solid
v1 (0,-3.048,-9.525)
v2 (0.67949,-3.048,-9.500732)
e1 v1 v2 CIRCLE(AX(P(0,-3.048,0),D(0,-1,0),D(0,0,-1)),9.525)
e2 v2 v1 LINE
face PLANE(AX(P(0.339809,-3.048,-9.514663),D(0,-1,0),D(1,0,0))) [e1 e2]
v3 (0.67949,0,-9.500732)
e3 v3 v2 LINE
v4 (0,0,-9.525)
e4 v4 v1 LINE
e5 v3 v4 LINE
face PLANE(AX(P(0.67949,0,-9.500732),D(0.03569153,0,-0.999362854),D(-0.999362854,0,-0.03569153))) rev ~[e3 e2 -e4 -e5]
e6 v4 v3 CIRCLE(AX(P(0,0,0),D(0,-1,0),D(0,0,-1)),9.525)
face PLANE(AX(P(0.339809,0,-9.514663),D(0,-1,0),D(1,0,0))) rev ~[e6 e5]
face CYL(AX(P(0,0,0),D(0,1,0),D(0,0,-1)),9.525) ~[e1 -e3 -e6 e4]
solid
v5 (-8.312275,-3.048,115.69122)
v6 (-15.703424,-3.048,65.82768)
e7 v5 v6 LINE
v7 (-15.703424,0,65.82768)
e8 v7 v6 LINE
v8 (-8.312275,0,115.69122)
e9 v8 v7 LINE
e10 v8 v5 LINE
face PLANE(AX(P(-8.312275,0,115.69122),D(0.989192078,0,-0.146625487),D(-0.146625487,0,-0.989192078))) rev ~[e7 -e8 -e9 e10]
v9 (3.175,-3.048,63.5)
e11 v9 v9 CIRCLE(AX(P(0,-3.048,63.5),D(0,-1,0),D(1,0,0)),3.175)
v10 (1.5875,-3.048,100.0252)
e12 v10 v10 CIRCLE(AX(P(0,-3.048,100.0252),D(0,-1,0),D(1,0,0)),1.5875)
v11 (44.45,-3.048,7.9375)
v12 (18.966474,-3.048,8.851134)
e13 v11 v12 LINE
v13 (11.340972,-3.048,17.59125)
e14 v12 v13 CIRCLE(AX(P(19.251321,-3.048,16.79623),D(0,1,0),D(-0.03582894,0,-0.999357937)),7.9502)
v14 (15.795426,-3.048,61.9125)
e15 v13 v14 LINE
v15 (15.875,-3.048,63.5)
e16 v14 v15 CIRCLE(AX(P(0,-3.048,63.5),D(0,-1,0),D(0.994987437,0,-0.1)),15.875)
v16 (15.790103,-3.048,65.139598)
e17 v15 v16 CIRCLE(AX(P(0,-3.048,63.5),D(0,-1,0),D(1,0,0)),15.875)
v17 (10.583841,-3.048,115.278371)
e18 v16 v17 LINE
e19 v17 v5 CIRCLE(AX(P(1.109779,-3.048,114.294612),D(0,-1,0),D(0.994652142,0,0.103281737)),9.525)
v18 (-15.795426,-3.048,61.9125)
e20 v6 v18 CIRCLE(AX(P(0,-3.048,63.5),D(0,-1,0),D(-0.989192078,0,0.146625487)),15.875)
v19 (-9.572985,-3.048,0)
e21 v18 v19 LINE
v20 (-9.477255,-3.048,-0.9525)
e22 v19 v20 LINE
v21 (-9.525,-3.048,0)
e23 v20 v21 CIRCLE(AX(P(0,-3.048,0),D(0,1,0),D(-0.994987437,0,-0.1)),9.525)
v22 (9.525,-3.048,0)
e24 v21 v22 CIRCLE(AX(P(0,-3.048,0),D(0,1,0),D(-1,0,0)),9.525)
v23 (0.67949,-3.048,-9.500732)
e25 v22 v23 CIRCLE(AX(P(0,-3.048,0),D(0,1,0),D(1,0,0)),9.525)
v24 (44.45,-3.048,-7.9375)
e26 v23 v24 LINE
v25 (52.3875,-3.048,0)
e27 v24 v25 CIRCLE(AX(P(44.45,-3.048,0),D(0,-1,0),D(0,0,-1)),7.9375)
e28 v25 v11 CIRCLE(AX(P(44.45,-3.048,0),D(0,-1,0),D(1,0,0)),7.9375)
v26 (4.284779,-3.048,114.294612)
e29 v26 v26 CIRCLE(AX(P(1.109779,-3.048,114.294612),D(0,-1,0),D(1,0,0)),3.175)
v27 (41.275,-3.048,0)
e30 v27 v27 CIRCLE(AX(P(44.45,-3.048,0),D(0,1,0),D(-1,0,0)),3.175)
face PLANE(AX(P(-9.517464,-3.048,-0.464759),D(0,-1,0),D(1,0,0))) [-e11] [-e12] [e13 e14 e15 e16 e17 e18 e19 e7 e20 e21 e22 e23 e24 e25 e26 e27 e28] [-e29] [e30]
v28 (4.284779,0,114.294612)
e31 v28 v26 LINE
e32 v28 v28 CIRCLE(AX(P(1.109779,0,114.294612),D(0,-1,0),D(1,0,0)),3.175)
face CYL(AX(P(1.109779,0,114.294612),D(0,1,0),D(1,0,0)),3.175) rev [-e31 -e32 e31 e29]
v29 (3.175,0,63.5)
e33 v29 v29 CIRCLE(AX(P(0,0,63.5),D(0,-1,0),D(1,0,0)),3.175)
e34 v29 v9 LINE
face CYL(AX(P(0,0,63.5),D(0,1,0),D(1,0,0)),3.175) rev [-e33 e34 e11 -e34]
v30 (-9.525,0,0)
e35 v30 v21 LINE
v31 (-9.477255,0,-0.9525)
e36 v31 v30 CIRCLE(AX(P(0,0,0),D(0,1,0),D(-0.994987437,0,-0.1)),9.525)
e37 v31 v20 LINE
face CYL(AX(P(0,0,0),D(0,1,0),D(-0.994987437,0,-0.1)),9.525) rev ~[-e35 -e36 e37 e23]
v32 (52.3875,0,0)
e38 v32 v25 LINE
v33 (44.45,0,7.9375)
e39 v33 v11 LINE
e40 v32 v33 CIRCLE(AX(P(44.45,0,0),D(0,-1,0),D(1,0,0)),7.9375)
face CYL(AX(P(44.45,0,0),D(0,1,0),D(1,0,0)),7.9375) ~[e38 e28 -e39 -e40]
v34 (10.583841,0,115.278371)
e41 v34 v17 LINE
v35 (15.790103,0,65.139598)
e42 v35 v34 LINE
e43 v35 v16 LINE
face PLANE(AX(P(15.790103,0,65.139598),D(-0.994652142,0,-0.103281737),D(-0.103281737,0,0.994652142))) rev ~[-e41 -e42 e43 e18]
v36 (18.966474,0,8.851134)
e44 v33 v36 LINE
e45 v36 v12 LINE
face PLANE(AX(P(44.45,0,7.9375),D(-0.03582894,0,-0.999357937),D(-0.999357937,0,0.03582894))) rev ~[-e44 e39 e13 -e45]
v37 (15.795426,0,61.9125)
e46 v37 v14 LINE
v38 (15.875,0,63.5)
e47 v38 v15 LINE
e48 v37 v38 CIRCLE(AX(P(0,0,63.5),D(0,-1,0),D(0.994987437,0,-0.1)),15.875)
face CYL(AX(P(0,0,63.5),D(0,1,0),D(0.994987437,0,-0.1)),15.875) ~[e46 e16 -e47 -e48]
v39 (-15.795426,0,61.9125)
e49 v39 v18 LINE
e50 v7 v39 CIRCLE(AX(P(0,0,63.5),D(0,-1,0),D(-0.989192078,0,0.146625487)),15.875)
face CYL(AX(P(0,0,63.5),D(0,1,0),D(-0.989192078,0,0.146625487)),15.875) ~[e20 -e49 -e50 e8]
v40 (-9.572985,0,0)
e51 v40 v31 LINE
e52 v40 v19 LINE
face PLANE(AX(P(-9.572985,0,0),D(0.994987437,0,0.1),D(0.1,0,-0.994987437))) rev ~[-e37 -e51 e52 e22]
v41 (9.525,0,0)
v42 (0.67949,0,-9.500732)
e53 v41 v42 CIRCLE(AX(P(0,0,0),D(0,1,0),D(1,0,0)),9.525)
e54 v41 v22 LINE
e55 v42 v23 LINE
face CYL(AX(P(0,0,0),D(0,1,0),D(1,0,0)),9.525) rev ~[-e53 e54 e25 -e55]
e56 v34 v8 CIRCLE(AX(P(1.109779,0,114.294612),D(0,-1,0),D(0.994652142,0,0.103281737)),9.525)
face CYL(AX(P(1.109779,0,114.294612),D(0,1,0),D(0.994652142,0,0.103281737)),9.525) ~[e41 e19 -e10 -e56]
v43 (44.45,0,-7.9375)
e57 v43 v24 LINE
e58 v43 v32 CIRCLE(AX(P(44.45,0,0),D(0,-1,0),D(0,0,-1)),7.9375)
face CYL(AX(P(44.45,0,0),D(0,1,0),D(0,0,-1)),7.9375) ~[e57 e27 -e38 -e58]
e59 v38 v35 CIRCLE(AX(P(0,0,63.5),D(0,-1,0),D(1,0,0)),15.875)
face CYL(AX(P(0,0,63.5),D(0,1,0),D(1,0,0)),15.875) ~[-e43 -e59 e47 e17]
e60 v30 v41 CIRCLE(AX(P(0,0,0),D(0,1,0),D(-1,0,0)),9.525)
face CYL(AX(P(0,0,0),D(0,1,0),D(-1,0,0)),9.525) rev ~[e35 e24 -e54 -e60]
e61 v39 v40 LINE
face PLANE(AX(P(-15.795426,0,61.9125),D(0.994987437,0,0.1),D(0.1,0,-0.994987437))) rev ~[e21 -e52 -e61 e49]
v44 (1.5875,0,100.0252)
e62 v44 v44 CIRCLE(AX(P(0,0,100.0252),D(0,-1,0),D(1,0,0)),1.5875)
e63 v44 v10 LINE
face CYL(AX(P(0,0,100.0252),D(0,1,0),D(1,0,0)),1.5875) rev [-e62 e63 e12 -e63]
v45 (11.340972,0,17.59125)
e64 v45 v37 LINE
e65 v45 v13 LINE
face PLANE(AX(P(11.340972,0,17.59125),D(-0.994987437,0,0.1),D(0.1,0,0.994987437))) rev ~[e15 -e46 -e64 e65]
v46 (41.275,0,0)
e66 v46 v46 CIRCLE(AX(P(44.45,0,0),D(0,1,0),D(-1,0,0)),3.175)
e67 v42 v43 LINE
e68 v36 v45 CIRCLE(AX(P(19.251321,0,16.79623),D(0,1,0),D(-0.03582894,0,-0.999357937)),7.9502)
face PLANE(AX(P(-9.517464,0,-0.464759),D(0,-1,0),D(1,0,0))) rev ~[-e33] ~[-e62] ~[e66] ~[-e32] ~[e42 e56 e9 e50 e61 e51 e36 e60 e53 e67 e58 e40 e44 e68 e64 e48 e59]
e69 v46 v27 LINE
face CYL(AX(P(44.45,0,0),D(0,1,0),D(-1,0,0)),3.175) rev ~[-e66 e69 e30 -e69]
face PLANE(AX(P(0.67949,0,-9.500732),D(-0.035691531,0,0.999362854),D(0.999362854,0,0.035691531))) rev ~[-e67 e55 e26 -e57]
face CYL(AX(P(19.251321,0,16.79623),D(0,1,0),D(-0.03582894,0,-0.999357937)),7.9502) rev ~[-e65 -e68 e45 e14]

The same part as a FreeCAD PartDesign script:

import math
import FreeCAD as App
import Part
import Sketcher

V = App.Vector
Q = App.Units.Quantity

doc = App.newDocument("Part")
body = doc.addObject("PartDesign::Body", "Body")

# Sketch on XZ plane
sketch1 = body.newObject("Sketcher::SketchObject", "Sketch")
sketch1.AttachmentSupport = (doc.getObject("XZ_Plane"), [""])
sketch1.MapMode = "FlatFace"
sketch1.addGeometry([
    Part.LineSegment(V(0.7, -9.5, 0), V(0, -9.5, 0)),
    Part.ArcOfCircle(Part.Circle(V(0, 0, 0), V(0, 0, 1), 9.5), math.radians(-90), math.radians(-85.91)),
], False)
sketch1.addConstraint([
    Sketcher.Constraint("Coincident", 0, 1, 1, 2),
    Sketcher.Constraint("Coincident", 1, 1, 0, 2),
    Sketcher.Constraint("Coincident", 1, 3, -1, 1),
    Sketcher.Constraint("PointOnObject", 1, 1, -2),
    Sketcher.Constraint("Radius", 1, Q("0.375 in")),
    Sketcher.Constraint("DistanceX", -1, 1, 0, 1, Q("0.67949 mm")),
])
pad1 = body.newObject("PartDesign::Pad", "Pad")
pad1.Profile = sketch1
pad1.Length = Q("0.12 in")
body2 = doc.addObject("PartDesign::Body", "Body001")

# Sketch on XZ plane
sketch2 = body2.newObject("Sketcher::SketchObject", "Sketch001")
sketch2.AttachmentSupport = (doc.getObject("XZ_Plane001"), [""])
sketch2.MapMode = "FlatFace"
sketch2.addGeometry([
    Part.ArcOfCircle(Part.Circle(V(0, 0, 0), V(0, 0, 1), 9.5), math.radians(180), math.radians(185.74)),  # 0
    Part.ArcOfCircle(Part.Circle(V(0, 0, 0), V(0, 0, 1), 9.5), math.radians(0), math.radians(180)),  # 1
    Part.ArcOfCircle(Part.Circle(V(0, 0, 0), V(0, 0, 1), 9.5), math.radians(-86), math.radians(0)),  # 2
    Part.LineSegment(V(0.7, -9.5, 0), V(44.5, -7.9, 0)),  # 3
    Part.ArcOfCircle(Part.Circle(V(44.5, 0, 0), V(0, 0, 1), 7.9), math.radians(-90), math.radians(0)),  # 4
    Part.ArcOfCircle(Part.Circle(V(44.5, 0, 0), V(0, 0, 1), 7.9), math.radians(0), math.radians(90)),  # 5
    Part.LineSegment(V(44.5, 7.9, 0), V(19, 8.9, 0)),  # 6
    Part.ArcOfCircle(Part.Circle(V(19.3, 16.8, 0), V(0, 0, 1), 8), math.radians(174), math.radians(268)),  # 7
    Part.LineSegment(V(11.3, 17.6, 0), V(15.8, 61.9, 0)),  # 8
    Part.ArcOfCircle(Part.Circle(V(0, 63.5, 0), V(0, 0, 1), 15.9), math.radians(-5.74), math.radians(0)),  # 9
    Part.ArcOfCircle(Part.Circle(V(0, 63.5, 0), V(0, 0, 1), 15.9), math.radians(0), math.radians(5.93)),  # 10
    Part.LineSegment(V(15.8, 65.1, 0), V(10.6, 115.3, 0)),  # 11
    Part.ArcOfCircle(Part.Circle(V(1.1, 114.3, 0), V(0, 0, 1), 9.5), math.radians(6), math.radians(172)),  # 12
    Part.LineSegment(V(-8.3, 115.7, 0), V(-15.7, 65.8, 0)),  # 13
    Part.ArcOfCircle(Part.Circle(V(0, 63.5, 0), V(0, 0, 1), 15.9), math.radians(171.57), math.radians(185.74)),  # 14
    Part.LineSegment(V(-15.8, 61.9, 0), V(-9.6, 0, 0)),  # 15
    Part.LineSegment(V(-9.6, 0, 0), V(-9.5, -1, 0)),  # 16
    Part.Circle(V(44.5, 0, 0), V(0, 0, 1), 3.2),  # 17
    Part.Circle(V(1.1, 114.3, 0), V(0, 0, 1), 3.2),  # 18
    Part.Circle(V(0, 63.5, 0), V(0, 0, 1), 3.2),  # 19
    Part.Circle(V(0, 100, 0), V(0, 0, 1), 1.6),  # 20
], False)
sketch2.addConstraint([
    Sketcher.Constraint("Tangent", 0, 1, 1, 2),
    Sketcher.Constraint("Tangent", 1, 1, 2, 2),
    Sketcher.Constraint("Coincident", 2, 1, 3, 1),
    Sketcher.Constraint("Coincident", 3, 2, 4, 1),
    Sketcher.Constraint("Tangent", 4, 2, 5, 1),
    Sketcher.Constraint("Coincident", 5, 2, 6, 1),
    Sketcher.Constraint("Tangent", 6, 2, 7, 2),
    Sketcher.Constraint("Tangent", 7, 1, 8, 1),
    Sketcher.Constraint("Tangent", 8, 2, 9, 1),
    Sketcher.Constraint("Tangent", 9, 2, 10, 1),
    Sketcher.Constraint("Tangent", 10, 2, 11, 1),
    Sketcher.Constraint("Tangent", 11, 2, 12, 1),
    Sketcher.Constraint("Tangent", 12, 2, 13, 1),
    Sketcher.Constraint("Tangent", 13, 2, 14, 1),
    Sketcher.Constraint("Tangent", 14, 2, 15, 1),
    Sketcher.Constraint("Coincident", 15, 2, 16, 1),
    Sketcher.Constraint("Tangent", 16, 2, 0, 2),
    Sketcher.Constraint("Coincident", 0, 3, -1, 1),
    Sketcher.Constraint("Coincident", 14, 3, 9, 3),
    Sketcher.Constraint("Coincident", 17, 3, 4, 3),
    Sketcher.Constraint("Coincident", 18, 3, 12, 3),
    Sketcher.Constraint("Coincident", 19, 3, 9, 3),
    Sketcher.Constraint("Equal", 0, 1),
    Sketcher.Constraint("Equal", 1, 2),
    Sketcher.Constraint("Equal", 4, 5),
    Sketcher.Constraint("Equal", 9, 10),
    Sketcher.Constraint("Equal", 2, 12),
    Sketcher.Constraint("Equal", 10, 14),
    Sketcher.Constraint("Equal", 17, 18),
    Sketcher.Constraint("Equal", 18, 19),
    Sketcher.Constraint("Symmetric", 8, 2, 14, 2, -2),
    Sketcher.Constraint("Symmetric", 3, 2, 5, 2, -1),
    Sketcher.Constraint("PointOnObject", 20, 3, -2),
    Sketcher.Constraint("PointOnObject", 0, 1, -1),
    Sketcher.Constraint("PointOnObject", 1, 1, -1),
    Sketcher.Constraint("PointOnObject", 4, 2, -1),
    Sketcher.Constraint("PointOnObject", 15, 2, -1),
    Sketcher.Constraint("Parallel", 15, 16),
    Sketcher.Constraint("Horizontal", 19, 3, 9, 2),
    Sketcher.Constraint("Vertical", 17, 3, 3, 2),
    Sketcher.Constraint("Diameter", 17, Q("0.25 in")),
    Sketcher.Constraint("Diameter", 20, Q("0.125 in")),
    Sketcher.Constraint("Radius", 0, Q("0.375 in")),
    Sketcher.Constraint("Radius", 4, Q("0.3125 in")),
    Sketcher.Constraint("Radius", 7, Q("0.313 in")),
    Sketcher.Constraint("Radius", 9, Q("0.625 in")),
    Sketcher.Constraint("DistanceY", -1, 1, 9, 3, Q("2.5 in")),
    Sketcher.Constraint("DistanceX", -1, 1, 4, 3, Q("1.75 in")),
    Sketcher.Constraint("DistanceY", -1, 1, 20, 3, Q("3.938 in")),
    Sketcher.Constraint("Distance", 6, Q("25.499898 mm")),
    Sketcher.Constraint("DistanceX", 14, 2, 13, 2, Q("0.092001 mm")),
    Sketcher.Constraint("Distance", 11, Q("50.40835 mm")),
    Sketcher.Constraint("DistanceX", -1, 1, 2, 1, Q("0.67949 mm")),
])
pad2 = body2.newObject("PartDesign::Pad", "Pad001")
pad2.Profile = sketch2
pad2.Length = Q("0.12 in")

doc.recompute()
